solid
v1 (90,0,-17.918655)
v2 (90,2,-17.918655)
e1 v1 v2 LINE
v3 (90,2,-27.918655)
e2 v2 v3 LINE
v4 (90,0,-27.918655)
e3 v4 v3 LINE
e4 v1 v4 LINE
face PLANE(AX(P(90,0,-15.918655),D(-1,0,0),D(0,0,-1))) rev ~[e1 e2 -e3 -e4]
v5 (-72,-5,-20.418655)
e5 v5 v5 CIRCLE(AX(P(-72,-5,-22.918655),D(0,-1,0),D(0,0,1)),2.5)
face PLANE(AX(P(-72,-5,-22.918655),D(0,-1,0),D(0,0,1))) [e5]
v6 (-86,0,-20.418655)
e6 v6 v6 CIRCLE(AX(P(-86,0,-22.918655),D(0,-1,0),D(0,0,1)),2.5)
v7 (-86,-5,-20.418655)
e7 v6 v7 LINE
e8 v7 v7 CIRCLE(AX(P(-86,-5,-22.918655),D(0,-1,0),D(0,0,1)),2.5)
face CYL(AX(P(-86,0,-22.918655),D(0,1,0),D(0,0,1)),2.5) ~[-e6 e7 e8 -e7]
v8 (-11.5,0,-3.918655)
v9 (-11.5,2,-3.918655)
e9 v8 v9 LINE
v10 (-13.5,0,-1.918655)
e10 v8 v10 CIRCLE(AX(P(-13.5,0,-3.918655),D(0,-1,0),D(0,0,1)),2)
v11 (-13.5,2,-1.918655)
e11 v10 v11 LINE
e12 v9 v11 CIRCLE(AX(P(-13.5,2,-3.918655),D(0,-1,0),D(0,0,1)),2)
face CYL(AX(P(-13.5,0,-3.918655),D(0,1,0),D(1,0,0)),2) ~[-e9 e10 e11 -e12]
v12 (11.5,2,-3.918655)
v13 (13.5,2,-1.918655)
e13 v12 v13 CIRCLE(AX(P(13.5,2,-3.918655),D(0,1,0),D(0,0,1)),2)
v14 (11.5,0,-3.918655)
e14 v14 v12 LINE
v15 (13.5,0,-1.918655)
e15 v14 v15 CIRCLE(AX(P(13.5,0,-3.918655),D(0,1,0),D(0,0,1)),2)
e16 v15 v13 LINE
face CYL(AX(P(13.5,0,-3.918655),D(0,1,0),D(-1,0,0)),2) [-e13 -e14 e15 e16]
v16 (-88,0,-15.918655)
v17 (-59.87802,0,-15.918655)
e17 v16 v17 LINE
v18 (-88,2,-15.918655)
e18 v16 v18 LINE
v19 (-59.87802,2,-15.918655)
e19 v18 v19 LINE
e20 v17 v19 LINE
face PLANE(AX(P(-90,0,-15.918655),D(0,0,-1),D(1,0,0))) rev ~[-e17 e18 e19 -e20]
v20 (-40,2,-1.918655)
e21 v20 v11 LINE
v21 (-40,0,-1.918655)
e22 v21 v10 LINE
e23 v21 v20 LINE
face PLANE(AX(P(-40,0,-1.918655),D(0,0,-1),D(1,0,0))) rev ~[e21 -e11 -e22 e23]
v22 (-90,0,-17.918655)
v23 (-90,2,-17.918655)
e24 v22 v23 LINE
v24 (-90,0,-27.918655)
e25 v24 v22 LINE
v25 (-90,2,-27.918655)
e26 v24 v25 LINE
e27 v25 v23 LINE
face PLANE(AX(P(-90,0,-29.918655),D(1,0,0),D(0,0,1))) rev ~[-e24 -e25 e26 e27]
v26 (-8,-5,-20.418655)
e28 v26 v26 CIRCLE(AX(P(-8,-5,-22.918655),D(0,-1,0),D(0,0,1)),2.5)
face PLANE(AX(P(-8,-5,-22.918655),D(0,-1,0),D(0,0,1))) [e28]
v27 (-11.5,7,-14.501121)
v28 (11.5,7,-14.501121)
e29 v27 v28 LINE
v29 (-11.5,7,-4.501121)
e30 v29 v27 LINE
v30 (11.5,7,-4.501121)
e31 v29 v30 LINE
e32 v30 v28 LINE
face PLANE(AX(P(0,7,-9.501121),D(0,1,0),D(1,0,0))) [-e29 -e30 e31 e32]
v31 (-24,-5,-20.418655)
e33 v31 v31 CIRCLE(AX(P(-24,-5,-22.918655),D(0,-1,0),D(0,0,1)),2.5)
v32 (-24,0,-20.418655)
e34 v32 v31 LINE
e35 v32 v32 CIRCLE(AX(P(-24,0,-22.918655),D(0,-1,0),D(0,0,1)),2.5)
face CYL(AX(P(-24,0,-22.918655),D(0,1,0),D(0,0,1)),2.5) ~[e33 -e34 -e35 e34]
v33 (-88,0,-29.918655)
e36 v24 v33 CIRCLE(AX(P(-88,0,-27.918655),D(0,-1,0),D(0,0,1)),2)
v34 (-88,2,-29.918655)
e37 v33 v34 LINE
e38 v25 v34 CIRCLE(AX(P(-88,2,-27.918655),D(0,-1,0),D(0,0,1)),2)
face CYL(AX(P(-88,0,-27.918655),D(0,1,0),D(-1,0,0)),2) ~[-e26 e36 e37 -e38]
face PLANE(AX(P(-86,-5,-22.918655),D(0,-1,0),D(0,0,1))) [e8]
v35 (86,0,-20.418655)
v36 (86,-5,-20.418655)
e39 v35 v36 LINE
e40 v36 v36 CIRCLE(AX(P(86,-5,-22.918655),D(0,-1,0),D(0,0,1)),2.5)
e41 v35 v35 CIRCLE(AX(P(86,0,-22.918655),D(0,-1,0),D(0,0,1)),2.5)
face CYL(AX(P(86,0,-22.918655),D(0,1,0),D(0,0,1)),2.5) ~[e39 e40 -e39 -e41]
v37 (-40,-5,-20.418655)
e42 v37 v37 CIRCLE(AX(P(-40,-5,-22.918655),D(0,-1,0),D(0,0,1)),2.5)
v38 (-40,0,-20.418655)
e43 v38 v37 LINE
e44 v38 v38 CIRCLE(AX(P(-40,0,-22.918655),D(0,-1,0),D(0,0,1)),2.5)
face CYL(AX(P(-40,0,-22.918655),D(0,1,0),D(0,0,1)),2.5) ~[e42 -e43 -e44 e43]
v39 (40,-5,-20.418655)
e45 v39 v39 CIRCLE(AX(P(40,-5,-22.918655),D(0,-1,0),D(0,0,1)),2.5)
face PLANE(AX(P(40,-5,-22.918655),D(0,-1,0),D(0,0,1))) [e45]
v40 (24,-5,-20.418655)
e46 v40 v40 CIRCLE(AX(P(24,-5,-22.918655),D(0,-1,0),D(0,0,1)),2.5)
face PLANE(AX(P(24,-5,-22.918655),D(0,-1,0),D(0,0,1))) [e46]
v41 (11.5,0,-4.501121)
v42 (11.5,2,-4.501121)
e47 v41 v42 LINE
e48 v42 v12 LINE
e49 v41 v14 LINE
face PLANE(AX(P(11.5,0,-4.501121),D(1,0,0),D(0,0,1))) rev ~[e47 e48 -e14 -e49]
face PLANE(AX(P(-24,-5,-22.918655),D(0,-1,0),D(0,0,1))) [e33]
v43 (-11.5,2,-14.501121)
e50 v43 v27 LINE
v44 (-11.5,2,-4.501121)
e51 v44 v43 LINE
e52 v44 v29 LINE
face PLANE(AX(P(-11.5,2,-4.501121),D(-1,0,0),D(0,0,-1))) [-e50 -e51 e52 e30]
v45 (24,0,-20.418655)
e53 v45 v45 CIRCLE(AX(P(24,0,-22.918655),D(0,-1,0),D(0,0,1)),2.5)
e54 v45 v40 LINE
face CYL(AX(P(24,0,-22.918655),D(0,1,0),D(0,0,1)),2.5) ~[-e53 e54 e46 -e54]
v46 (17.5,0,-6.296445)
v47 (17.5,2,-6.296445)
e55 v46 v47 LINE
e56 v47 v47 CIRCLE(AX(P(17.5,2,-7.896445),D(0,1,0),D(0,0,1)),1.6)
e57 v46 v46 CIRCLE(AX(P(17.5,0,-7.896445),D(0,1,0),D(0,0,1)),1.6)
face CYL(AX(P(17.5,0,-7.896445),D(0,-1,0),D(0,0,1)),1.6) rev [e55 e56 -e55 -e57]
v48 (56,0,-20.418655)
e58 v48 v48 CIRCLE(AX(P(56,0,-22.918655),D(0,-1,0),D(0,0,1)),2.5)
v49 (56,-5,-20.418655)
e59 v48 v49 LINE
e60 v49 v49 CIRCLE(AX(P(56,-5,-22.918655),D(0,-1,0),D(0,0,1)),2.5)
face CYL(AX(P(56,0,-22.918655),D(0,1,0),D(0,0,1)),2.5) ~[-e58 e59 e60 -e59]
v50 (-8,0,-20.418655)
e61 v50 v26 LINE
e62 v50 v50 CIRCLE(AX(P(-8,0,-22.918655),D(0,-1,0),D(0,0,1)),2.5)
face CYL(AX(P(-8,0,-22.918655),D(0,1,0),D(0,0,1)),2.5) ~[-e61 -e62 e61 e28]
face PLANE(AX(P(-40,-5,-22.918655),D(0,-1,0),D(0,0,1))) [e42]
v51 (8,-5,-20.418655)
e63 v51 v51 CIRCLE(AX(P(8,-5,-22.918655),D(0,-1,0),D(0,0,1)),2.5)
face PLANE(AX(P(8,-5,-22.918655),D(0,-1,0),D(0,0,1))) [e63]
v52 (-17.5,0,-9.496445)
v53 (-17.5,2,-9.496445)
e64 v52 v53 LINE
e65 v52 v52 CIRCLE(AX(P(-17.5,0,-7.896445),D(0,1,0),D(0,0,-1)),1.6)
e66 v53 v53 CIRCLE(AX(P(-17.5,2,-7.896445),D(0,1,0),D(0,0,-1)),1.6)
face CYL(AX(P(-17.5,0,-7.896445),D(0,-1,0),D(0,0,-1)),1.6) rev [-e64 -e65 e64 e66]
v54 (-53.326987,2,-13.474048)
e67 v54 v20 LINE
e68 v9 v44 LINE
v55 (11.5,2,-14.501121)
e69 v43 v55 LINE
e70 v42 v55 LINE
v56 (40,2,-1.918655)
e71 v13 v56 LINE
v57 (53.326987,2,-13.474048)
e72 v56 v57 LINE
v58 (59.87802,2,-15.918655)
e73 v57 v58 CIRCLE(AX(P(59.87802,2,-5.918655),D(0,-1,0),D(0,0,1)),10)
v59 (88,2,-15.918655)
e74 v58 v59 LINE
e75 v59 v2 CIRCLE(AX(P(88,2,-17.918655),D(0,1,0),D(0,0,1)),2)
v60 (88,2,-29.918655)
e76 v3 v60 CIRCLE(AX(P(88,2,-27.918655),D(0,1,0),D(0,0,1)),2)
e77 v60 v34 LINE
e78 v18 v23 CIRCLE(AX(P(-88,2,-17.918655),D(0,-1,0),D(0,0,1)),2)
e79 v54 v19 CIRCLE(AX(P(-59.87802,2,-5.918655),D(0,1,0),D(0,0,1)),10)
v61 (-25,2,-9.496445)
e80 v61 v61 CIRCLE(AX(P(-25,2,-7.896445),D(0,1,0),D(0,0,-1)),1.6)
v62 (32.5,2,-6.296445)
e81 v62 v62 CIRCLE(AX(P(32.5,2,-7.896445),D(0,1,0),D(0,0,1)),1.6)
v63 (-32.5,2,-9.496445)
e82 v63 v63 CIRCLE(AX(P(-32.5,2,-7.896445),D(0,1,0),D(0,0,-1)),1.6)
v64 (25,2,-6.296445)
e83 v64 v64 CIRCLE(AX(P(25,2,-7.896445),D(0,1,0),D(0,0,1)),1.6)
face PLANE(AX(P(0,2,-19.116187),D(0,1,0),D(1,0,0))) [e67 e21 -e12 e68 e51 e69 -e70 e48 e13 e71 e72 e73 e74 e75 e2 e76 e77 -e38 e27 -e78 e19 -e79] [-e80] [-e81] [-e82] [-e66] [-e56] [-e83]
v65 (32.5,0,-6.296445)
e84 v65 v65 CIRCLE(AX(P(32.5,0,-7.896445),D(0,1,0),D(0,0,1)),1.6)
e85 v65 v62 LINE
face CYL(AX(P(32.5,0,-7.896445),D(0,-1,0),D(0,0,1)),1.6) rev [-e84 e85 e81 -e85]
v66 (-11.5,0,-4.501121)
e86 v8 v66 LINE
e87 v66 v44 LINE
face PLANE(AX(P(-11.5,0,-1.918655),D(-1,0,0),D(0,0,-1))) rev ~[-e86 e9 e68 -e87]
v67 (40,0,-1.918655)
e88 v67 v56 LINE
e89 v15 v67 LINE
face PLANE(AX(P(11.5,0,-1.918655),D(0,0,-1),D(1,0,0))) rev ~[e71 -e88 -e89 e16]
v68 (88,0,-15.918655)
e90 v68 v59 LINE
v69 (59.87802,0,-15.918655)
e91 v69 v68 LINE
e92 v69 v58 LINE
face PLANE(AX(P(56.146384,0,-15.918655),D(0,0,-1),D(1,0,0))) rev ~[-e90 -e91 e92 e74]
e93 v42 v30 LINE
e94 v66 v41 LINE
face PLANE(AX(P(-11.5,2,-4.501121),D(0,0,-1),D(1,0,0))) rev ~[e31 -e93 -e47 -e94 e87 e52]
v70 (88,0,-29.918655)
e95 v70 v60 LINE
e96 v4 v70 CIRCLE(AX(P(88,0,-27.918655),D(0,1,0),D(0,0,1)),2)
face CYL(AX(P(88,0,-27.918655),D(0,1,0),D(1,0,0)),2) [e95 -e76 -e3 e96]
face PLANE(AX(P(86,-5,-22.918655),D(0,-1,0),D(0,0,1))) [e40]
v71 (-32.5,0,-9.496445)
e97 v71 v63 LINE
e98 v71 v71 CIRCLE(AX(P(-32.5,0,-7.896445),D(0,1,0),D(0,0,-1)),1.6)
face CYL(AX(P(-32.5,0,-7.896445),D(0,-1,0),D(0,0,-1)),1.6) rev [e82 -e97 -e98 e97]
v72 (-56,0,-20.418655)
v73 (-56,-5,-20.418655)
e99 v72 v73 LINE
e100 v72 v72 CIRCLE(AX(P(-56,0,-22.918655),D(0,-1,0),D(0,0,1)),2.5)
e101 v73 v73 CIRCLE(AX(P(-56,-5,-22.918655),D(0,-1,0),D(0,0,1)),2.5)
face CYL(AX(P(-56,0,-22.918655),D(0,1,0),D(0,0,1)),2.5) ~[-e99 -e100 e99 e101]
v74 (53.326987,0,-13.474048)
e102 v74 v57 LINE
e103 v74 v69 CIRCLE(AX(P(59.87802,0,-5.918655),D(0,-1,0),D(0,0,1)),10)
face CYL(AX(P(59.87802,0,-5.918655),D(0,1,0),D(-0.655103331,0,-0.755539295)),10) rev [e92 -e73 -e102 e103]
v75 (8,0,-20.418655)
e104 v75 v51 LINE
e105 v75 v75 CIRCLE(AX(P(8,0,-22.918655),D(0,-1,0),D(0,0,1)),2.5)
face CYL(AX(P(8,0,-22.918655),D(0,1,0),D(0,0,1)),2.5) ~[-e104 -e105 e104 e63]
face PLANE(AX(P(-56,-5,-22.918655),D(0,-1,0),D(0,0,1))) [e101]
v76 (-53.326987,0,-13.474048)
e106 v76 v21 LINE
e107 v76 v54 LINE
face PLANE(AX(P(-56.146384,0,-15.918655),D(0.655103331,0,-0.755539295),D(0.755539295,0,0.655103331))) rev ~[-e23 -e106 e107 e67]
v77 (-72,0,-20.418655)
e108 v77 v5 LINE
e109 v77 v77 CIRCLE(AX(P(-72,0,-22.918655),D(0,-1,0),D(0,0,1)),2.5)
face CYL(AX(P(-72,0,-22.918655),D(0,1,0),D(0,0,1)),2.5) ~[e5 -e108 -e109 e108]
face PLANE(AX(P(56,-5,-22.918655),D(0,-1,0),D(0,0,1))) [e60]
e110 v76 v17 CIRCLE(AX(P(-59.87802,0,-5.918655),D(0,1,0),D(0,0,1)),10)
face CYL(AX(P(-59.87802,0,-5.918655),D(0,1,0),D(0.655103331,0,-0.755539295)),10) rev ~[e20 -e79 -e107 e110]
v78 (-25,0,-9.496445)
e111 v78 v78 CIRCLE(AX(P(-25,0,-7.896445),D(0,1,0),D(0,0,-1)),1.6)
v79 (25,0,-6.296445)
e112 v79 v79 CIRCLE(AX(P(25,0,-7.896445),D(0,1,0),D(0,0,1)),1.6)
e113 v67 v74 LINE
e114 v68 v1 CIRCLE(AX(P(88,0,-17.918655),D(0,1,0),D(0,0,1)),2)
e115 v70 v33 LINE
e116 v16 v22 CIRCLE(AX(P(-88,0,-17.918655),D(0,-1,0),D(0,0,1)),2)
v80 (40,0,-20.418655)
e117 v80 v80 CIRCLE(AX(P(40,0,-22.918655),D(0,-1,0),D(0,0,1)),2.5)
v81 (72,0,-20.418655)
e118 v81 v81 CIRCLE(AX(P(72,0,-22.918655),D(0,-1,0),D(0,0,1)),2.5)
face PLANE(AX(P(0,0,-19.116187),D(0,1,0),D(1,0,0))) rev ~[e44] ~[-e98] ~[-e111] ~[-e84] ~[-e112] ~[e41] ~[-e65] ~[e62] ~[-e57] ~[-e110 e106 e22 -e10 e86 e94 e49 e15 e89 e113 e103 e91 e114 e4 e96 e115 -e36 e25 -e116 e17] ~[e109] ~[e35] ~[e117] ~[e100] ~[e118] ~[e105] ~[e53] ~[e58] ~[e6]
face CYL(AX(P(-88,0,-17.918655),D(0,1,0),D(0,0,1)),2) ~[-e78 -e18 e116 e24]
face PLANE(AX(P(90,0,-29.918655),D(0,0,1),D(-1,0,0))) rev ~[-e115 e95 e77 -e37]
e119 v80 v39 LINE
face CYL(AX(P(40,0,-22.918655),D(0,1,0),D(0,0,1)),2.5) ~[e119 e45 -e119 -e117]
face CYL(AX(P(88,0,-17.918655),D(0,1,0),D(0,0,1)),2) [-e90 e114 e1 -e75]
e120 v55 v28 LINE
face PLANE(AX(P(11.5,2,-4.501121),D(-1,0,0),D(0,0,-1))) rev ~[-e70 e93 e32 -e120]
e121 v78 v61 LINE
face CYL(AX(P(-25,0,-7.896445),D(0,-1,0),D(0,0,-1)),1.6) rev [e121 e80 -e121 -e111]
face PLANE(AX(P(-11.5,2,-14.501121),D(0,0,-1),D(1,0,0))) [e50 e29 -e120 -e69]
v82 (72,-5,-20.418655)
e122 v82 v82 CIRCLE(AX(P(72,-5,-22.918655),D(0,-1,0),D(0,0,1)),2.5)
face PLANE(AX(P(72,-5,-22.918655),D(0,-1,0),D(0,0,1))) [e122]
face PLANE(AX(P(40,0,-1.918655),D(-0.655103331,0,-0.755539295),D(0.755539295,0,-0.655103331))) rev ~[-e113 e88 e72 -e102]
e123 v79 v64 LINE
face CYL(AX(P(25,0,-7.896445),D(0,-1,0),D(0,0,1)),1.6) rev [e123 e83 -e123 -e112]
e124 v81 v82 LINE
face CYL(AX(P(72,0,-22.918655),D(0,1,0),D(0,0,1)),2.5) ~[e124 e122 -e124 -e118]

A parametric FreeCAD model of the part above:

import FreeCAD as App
import Part
import Sketcher

V = App.Vector
Q = App.Units.Quantity


def edges_at(feature, points):
    """Names of the edges that pass closest to the given points."""
    edges = feature.Shape.Edges
    near = lambda p: min(range(len(edges)), key=lambda i: edges[i].distToShape(Part.Vertex(*p))[0])
    return sorted({f"Edge{near(p) + 1}" for p in points})

doc = App.newDocument("Part")
body = doc.addObject("PartDesign::Body", "Body")

sketch1 = doc.addObject("Sketcher::SketchObject", "Sketch")
body.addObject(sketch1)
sketch1.AttachmentSupport = (doc.XZ_Plane, [""])
sketch1.MapMode = "FlatFace"
sketch1.addGeometry([
    Part.LineSegment(V(-11.5, -4.5, 0), V(11.5, -4.5, 0)),
    Part.LineSegment(V(11.5, -4.5, 0), V(11.5, -1.9, 0)),
    Part.LineSegment(V(11.5, -1.9, 0), V(40, -1.9, 0)),
    Part.LineSegment(V(40, -1.9, 0), V(56.1, -15.9, 0)),
    Part.LineSegment(V(56.1, -15.9, 0), V(90, -15.9, 0)),
    Part.LineSegment(V(90, -15.9, 0), V(90, -29.9, 0)),
    Part.LineSegment(V(90, -29.9, 0), V(-90, -29.9, 0)),
    Part.LineSegment(V(-90, -29.9, 0), V(-90, -15.9, 0)),
    Part.LineSegment(V(-90, -15.9, 0), V(-56.1, -15.9, 0)),
    Part.LineSegment(V(-56.1, -15.9, 0), V(-40, -1.9, 0)),
    Part.LineSegment(V(-40, -1.9, 0), V(-11.5, -1.9, 0)),
    Part.LineSegment(V(-11.5, -1.9, 0), V(-11.5, -4.5, 0)),
    Part.Circle(V(-32.5, -7.9, 0), V(0, 0, 1), 1.6),
    Part.Circle(V(-25, -7.9, 0), V(0, 0, 1), 1.6),
    Part.Circle(V(-17.5, -7.9, 0), V(0, 0, 1), 1.6),
    Part.Circle(V(17.5, -7.9, 0), V(0, 0, 1), 1.6),
    Part.Circle(V(25, -7.9, 0), V(0, 0, 1), 1.6),
    Part.Circle(V(32.5, -7.9, 0), V(0, 0, 1), 1.6),
], False)
sketch1.addConstraint([
    Sketcher.Constraint("Coincident", 0, 2, 1, 1),
    Sketcher.Constraint("Coincident", 1, 2, 2, 1),
    Sketcher.Constraint("Coincident", 2, 2, 3, 1),
    Sketcher.Constraint("Coincident", 3, 2, 4, 1),
    Sketcher.Constraint("Coincident", 4, 2, 5, 1),
    Sketcher.Constraint("Coincident", 5, 2, 6, 1),
    Sketcher.Constraint("Coincident", 6, 2, 7, 1),
    Sketcher.Constraint("Coincident", 7, 2, 8, 1),
    Sketcher.Constraint("Coincident", 8, 2, 9, 1),
    Sketcher.Constraint("Coincident", 9, 2, 10, 1),
    Sketcher.Constraint("Coincident", 10, 2, 11, 1),
    Sketcher.Constraint("Coincident", 11, 2, 0, 1),
    Sketcher.Constraint("Horizontal", 0),
    Sketcher.Constraint("Vertical", 1),
    Sketcher.Constraint("Horizontal", 2),
    Sketcher.Constraint("Horizontal", 4),
    Sketcher.Constraint("Vertical", 5),
    Sketcher.Constraint("Horizontal", 6),
    Sketcher.Constraint("Vertical", 7),
    Sketcher.Constraint("Horizontal", 8),
    Sketcher.Constraint("Horizontal", 10),
    Sketcher.Constraint("Vertical", 11),
    Sketcher.Constraint("Equal", 12, 13),
    Sketcher.Constraint("Equal", 13, 14),
    Sketcher.Constraint("Equal", 14, 15),
    Sketcher.Constraint("Equal", 15, 16),
    Sketcher.Constraint("Equal", 16, 17),
    Sketcher.Constraint("Symmetric", 14, 3, 15, 3, -2),
    Sketcher.Constraint("Symmetric", 13, 3, 16, 3, -2),
    Sketcher.Constraint("Symmetric", 12, 3, 17, 3, -2),
    Sketcher.Constraint("Symmetric", 4, 2, 7, 2, -2),
    Sketcher.Constraint("Symmetric", 2, 2, 9, 2, -2),
    Sketcher.Constraint("Horizontal", 12, 3, 13, 3),
    Sketcher.Constraint("Horizontal", 13, 3, 14, 3),
    Sketcher.Constraint("Equal", 4, 8),
    Sketcher.Constraint("Equal", 2, 10),
    Sketcher.Constraint("Diameter", 12, Q("3.2 mm")),
    Sketcher.Constraint("DistanceX", 0, 1, 0, 2, Q("23 mm")),
    Sketcher.Constraint("DistanceX", 6, 2, 6, 1, Q("180 mm")),
    Sketcher.Constraint("DistanceY", 5, 2, 5, 1, Q("14 mm")),
    Sketcher.Constraint("DistanceX", 2, 1, 2, 2, Q("28.5 mm")),
    Sketcher.Constraint("DistanceX", 13, 3, -1, 1, Q("25 mm")),
    Sketcher.Constraint("DistanceX", 12, 3, 14, 3, Q("15 mm")),
    Sketcher.Constraint("DistanceX", 14, 3, 15, 3, Q("35 mm")),
    Sketcher.Constraint("DistanceY", 3, 2, 2, 2, Q("14 mm")),
    Sketcher.Constraint("DistanceX", 4, 1, 4, 2, Q("33.853616 mm")),
    Sketcher.Constraint("DistanceY", 1, 1, 1, 2, Q("2.582466 mm")),
    Sketcher.Constraint("DistanceY", 0, 2, -1, 1, Q("4.501121 mm")),
    Sketcher.Constraint("DistanceY", 15, 3, 1, 2, Q("5.97779 mm")),
])
pad1 = doc.addObject("PartDesign::Pad", "Pad")
body.addObject(pad1)
pad1.Profile = sketch1
pad1.Length = 2
pad1.Reversed = True
doc.recompute()

fillet = doc.addObject("PartDesign::Fillet", "Fillet")
body.addObject(fillet)
fillet.Base = (pad1, edges_at(pad1, [
    (-11.5, 1, -1.919),
    (-90, 1, -15.919),
    (-90, 1, -29.919),
    (90, 1, -29.919),
    (90, 1, -15.919),
    (11.5, 1, -1.919),
]))
fillet.Radius = 2
doc.recompute()

fillet2 = doc.addObject("PartDesign::Fillet", "Fillet001")
body.addObject(fillet2)
fillet2.Base = (fillet, edges_at(fillet, [(-56.146, 1, -15.919), (56.146, 1, -15.919)]))
fillet2.Radius = 10

sketch2 = doc.addObject("Sketcher::SketchObject", "Sketch001")
body.addObject(sketch2)
sketch2.AttachmentSupport = (doc.XZ_Plane, [""])
sketch2.MapMode = "FlatFace"
sketch2.addGeometry([
    Part.Circle(V(-8, -22.9, 0), V(0, 0, 1), 2.5),
    Part.Circle(V(-24, -22.9, 0), V(0, 0, 1), 2.5),
    Part.Circle(V(-40, -22.9, 0), V(0, 0, 1), 2.5),
    Part.Circle(V(-56, -22.9, 0), V(0, 0, 1), 2.5),
    Part.Circle(V(-72, -22.9, 0), V(0, 0, 1), 2.5),
    Part.Circle(V(-86, -22.9, 0), V(0, 0, 1), 2.5),
    Part.Circle(V(8, -22.9, 0), V(0, 0, 1), 2.5),
    Part.Circle(V(24, -22.9, 0), V(0, 0, 1), 2.5),
    Part.Circle(V(40, -22.9, 0), V(0, 0, 1), 2.5),
    Part.Circle(V(56, -22.9, 0), V(0, 0, 1), 2.5),
    Part.Circle(V(72, -22.9, 0), V(0, 0, 1), 2.5),
    Part.Circle(V(86, -22.9, 0), V(0, 0, 1), 2.5),
], False)
sketch2.addConstraint([
    Sketcher.Constraint("Equal", 0, 1),
    Sketcher.Constraint("Equal", 1, 2),
    Sketcher.Constraint("Equal", 2, 3),
    Sketcher.Constraint("Equal", 3, 4),
    Sketcher.Constraint("Equal", 4, 5),
    Sketcher.Constraint("Equal", 5, 6),
    Sketcher.Constraint("Equal", 6, 7),
    Sketcher.Constraint("Equal", 7, 8),
    Sketcher.Constraint("Equal", 8, 9),
    Sketcher.Constraint("Equal", 9, 10),
    Sketcher.Constraint("Equal", 10, 11),
    Sketcher.Constraint("Symmetric", 0, 3, 6, 3, -2),
    Sketcher.Constraint("Symmetric", 1, 3, 7, 3, -2),
    Sketcher.Constraint("Symmetric", 2, 3, 8, 3, -2),
    Sketcher.Constraint("Symmetric", 3, 3, 9, 3, -2),
    Sketcher.Constraint("Symmetric", 4, 3, 10, 3, -2),
    Sketcher.Constraint("Symmetric", 5, 3, 11, 3, -2),
    Sketcher.Constraint("Horizontal", 0, 3, 1, 3),
    Sketcher.Constraint("Horizontal", 1, 3, 2, 3),
    Sketcher.Constraint("Horizontal", 2, 3, 3, 3),
    Sketcher.Constraint("Horizontal", 3, 3, 4, 3),
    Sketcher.Constraint("Horizontal", 4, 3, 5, 3),
    Sketcher.Constraint("Diameter", 0, Q("5 mm")),
    Sketcher.Constraint("DistanceX", 0, 3, -1, 1, Q("8 mm")),
    Sketcher.Constraint("DistanceX", 1, 3, -1, 1, Q("24 mm")),
    Sketcher.Constraint("DistanceX", 2, 3, -1, 1, Q("40 mm")),
    Sketcher.Constraint("DistanceX", 3, 3, -1, 1, Q("56 mm")),
    Sketcher.Constraint("DistanceX", 4, 3, -1, 1, Q("72 mm")),
    Sketcher.Constraint("DistanceX", 5, 3, -1, 1, Q("86 mm")),
    Sketcher.Constraint("DistanceY", 0, 3, -1, 1, Q("22.918655 mm")),
])
pad2 = doc.addObject("PartDesign::Pad", "Pad001")
body.addObject(pad2)
pad2.Profile = sketch2
pad2.Length = 5

sketch3 = doc.addObject("Sketcher::SketchObject", "Sketch002")
body.addObject(sketch3)
sketch3.AttachmentSupport = (doc.XZ_Plane, [""])
sketch3.MapMode = "FlatFace"
sketch3.AttachmentOffset = App.Placement(V(0, 0, -2), App.Rotation())
sketch3.addGeometry([
    Part.LineSegment(V(-12, -15, 0), V(-12, -5, 0)),
    Part.LineSegment(V(-12, -5, 0), V(12, -5, 0)),
    Part.LineSegment(V(12, -5, 0), V(12, -15, 0)),
    Part.LineSegment(V(12, -15, 0), V(-12, -15, 0)),
], False)
sketch3.addConstraint([
    Sketcher.Constraint("Coincident", 0, 2, 1, 1),
    Sketcher.Constraint("Coincident", 1, 2, 2, 1),
    Sketcher.Constraint("Coincident", 2, 2, 3, 1),
    Sketcher.Constraint("Coincident", 3, 2, 0, 1),
    Sketcher.Constraint("Vertical", 0),
    Sketcher.Constraint("Horizontal", 1),
    Sketcher.Constraint("Vertical", 2),
    Sketcher.Constraint("Horizontal", 3),
    Sketcher.Constraint("DistanceX", 1, 1, 1, 2, Q("23 mm")),
    Sketcher.Constraint("DistanceY", 0, 1, 0, 2, Q("10 mm")),
    Sketcher.Constraint("DistanceX", 0, 2, -1, 1, Q("11.5 mm")),
    Sketcher.Constraint("DistanceY", 0, 2, -1, 1, Q("4.501121 mm")),
])
pad3 = doc.addObject("PartDesign::Pad", "Pad002")
body.addObject(pad3)
pad3.Profile = sketch3
pad3.Length = 5
pad3.Reversed = True

doc.recompute()
